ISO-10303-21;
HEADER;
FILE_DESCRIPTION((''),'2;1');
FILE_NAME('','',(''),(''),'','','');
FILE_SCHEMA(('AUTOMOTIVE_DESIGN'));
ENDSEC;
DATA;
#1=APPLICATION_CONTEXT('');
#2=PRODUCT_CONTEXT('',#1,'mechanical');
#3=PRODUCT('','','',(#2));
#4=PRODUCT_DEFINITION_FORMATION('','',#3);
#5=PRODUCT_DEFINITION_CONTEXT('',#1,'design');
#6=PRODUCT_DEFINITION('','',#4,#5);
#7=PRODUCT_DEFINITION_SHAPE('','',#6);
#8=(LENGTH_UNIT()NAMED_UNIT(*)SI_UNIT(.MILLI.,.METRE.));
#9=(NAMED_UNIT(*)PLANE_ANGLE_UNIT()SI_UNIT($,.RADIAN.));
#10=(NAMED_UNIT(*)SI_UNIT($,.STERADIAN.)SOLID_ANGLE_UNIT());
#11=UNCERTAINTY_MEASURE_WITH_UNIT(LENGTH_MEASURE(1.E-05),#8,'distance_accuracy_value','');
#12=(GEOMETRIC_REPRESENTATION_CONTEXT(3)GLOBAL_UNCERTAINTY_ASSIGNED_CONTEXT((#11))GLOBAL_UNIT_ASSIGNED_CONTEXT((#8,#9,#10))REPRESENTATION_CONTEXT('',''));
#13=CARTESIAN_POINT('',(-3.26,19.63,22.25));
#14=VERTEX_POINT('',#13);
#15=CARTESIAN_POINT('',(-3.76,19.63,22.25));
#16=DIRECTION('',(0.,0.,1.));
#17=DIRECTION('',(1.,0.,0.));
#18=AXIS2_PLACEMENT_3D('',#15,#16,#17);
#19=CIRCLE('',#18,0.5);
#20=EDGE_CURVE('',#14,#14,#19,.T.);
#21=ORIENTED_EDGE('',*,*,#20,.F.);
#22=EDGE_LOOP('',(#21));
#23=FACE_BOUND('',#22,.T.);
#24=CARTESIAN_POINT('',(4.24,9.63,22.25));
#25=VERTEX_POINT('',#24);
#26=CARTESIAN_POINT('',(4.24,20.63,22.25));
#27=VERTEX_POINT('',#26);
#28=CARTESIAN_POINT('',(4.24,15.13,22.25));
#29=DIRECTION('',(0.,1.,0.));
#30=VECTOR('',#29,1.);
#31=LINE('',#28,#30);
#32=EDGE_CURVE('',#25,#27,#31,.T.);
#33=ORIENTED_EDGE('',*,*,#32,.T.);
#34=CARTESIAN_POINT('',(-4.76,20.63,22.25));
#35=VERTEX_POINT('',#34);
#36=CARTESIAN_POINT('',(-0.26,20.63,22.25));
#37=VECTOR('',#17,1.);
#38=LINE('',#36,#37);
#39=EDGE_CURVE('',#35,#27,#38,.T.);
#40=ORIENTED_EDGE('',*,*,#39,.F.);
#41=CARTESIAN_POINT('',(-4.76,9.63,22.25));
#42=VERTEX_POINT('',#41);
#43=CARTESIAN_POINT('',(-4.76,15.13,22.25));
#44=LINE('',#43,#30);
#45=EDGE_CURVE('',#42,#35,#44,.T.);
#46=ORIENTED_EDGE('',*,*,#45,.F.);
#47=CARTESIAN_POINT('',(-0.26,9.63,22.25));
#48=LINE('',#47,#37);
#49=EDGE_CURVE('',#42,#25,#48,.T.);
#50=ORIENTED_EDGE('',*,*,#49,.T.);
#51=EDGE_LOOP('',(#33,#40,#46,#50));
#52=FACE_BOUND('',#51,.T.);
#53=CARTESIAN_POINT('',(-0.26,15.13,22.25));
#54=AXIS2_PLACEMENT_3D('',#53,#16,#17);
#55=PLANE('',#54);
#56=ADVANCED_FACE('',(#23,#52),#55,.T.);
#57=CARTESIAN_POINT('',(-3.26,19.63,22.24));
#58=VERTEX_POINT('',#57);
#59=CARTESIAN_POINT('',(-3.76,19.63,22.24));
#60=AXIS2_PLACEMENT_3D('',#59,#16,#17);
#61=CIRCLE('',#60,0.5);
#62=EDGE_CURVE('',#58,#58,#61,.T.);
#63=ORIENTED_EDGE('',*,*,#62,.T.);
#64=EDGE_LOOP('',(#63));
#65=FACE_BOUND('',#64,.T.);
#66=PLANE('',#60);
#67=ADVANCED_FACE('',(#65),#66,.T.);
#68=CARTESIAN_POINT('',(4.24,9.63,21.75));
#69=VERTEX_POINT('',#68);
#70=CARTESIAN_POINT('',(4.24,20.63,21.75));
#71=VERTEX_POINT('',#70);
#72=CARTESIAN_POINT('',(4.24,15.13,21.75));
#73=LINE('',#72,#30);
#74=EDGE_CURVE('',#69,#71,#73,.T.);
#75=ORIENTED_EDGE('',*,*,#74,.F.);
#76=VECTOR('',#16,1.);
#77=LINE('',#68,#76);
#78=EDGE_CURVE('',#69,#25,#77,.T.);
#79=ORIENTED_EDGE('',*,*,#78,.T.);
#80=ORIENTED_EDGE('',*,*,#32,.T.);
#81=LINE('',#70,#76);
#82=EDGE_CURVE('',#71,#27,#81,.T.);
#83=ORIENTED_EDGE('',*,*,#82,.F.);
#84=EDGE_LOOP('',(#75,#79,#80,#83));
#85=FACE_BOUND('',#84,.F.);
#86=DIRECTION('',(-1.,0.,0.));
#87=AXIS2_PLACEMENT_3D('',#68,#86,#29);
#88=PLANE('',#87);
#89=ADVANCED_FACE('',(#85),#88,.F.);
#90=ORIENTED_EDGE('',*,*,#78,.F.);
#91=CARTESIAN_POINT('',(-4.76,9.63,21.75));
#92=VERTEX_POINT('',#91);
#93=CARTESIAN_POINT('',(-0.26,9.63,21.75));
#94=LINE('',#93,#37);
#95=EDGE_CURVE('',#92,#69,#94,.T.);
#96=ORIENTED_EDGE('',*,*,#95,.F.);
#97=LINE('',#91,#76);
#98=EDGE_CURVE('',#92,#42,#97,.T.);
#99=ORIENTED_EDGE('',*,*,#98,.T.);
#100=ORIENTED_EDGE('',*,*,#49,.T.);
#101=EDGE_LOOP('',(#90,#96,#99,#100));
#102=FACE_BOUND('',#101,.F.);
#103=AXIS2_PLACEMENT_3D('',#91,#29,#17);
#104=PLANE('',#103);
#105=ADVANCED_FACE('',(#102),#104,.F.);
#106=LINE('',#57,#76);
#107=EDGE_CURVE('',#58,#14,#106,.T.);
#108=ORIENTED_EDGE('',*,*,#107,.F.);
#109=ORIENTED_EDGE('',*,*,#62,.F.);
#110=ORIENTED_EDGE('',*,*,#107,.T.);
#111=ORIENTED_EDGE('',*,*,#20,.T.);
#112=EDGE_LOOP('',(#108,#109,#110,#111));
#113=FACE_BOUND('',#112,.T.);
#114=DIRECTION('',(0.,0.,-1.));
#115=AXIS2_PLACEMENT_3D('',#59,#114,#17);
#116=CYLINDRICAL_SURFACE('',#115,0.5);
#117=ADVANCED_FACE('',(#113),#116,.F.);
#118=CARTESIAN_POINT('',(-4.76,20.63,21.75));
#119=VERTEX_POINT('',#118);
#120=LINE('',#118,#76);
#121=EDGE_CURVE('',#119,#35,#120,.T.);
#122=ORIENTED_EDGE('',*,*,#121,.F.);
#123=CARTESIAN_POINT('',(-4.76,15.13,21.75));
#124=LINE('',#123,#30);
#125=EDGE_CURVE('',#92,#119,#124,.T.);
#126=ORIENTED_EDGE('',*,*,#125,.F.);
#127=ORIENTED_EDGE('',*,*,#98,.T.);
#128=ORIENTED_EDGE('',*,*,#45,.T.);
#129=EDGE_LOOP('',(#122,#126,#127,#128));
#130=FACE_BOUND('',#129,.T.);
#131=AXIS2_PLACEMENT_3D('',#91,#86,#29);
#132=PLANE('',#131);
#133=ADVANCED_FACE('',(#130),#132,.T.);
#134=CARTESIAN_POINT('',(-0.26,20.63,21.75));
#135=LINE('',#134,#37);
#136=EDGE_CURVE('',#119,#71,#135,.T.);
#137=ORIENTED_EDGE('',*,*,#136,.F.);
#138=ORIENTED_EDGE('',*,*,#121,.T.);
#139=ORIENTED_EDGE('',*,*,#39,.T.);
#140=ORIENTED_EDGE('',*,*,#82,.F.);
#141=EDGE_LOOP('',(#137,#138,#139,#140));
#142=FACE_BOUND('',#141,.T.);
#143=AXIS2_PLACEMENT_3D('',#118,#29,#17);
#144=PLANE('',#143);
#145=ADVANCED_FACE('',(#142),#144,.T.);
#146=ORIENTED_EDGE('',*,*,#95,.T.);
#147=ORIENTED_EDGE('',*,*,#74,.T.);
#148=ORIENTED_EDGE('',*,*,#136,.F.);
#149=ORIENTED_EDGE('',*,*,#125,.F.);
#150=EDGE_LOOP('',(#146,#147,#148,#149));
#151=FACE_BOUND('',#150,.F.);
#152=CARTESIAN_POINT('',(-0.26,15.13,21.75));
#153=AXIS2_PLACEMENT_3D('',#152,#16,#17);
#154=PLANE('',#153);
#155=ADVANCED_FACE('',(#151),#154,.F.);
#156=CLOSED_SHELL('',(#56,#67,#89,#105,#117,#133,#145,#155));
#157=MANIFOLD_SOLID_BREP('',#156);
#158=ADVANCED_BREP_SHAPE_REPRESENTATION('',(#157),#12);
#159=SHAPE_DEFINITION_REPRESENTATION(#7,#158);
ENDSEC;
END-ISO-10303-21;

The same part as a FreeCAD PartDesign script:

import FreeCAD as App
import Part
import Sketcher
from FreeCAD import Vector
Q = App.Units.Quantity


def add_polygon(sketch, points):
    """Adds a closed chain of lines whose ends are joined by coincident constraints."""
    first, n = sketch.GeometryCount, len(points)
    for a, b in zip(points, points[1:] + points[:1]):
        sketch.addGeometry(Part.LineSegment(App.Vector(*a, 0), App.Vector(*b, 0)), False)
    for i in range(n):
        sketch.addConstraint(Sketcher.Constraint("Coincident", first + i, 2, first + (i + 1) % n, 1))

doc = App.newDocument("Part")
body = doc.addObject("PartDesign::Body", "Body")

sketch1 = doc.addObject("Sketcher::SketchObject", "Sketch")
body.addObject(sketch1)
sketch1.AttachmentSupport = (doc.XY_Plane, [""])
sketch1.MapMode = "FlatFace"
sketch1.AttachmentOffset = App.Placement(Vector(0, 0, 0.49), App.Rotation())
sketch1.addGeometry(Part.Circle(Vector(1, 10, 0), Vector(0, 0, 1), 0.5), False)
sketch1.addConstraint(Sketcher.Constraint("Diameter", 0, Q("1 mm")))
sketch1.addConstraint(Sketcher.Constraint("DistanceX", -1, 1, 0, 3, Q("1 mm")))
sketch1.addConstraint(Sketcher.Constraint("DistanceY", -1, 1, 0, 3, Q("10 mm")))
pad1 = doc.addObject("PartDesign::Pad", "Pad")
body.addObject(pad1)
pad1.Profile = sketch1
pad1.Length = 0.01
body2 = doc.addObject("PartDesign::Body", "Body001")

sketch2 = doc.addObject("Sketcher::SketchObject", "Sketch001")
body2.addObject(sketch2)
sketch2.AttachmentSupport = (doc.getObject("XY_Plane001"), [""])
sketch2.MapMode = "FlatFace"
add_polygon(sketch2, [(0, 11), (0, 0), (9, 0), (9, 11)])
sketch2.addConstraint(Sketcher.Constraint("Vertical", 0))
sketch2.addConstraint(Sketcher.Constraint("Horizontal", 1))
sketch2.addConstraint(Sketcher.Constraint("Vertical", 2))
sketch2.addConstraint(Sketcher.Constraint("Horizontal", 3))
sketch2.addConstraint(Sketcher.Constraint("Coincident", 0, 2, -1, 1))
sketch2.addConstraint(Sketcher.Constraint("DistanceX", 1, 1, 1, 2, Q("9 mm")))
sketch2.addConstraint(Sketcher.Constraint("DistanceY", 0, 2, 0, 1, Q("11 mm")))
pad2 = doc.addObject("PartDesign::Pad", "Pad001")
body2.addObject(pad2)
pad2.Profile = sketch2
pad2.Length = 0.5
doc.recompute()

boolean = doc.addObject("PartDesign::Boolean", "Boolean")
body2.addObject(boolean)
boolean.Type = "Cut"
boolean.addObjects([body])
body3 = doc.addObject("PartDesign::Body", "Body002")
doc.recompute()

body2.Placement = App.Placement(Vector(-4.76, 9.63, 21.75), App.Rotation(Vector(0, 0, 1), 0))
boolean2 = doc.addObject("PartDesign::Boolean", "Boolean001")
body3.addObject(boolean2)
boolean2.Type = "Fuse"
boolean2.addObjects([body2])

doc.recompute()
